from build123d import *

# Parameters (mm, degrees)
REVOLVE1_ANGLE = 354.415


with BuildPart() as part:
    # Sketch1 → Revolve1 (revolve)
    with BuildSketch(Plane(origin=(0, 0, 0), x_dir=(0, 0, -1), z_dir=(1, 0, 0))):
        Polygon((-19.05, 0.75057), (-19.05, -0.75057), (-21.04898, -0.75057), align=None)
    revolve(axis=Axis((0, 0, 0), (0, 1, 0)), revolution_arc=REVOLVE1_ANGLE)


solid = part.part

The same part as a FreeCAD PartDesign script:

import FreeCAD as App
import Part
import Sketcher

doc = App.newDocument("Part")
body = doc.addObject("PartDesign::Body", "Body")

sketch1 = doc.addObject("Sketcher::SketchObject", "Sketch")
body.addObject(sketch1)
sketch1.AttachmentSupport = (doc.YZ_Plane, [""])
sketch1.MapMode = "FlatFace"
sketch1.addGeometry([
    Part.LineSegment(App.Vector(-0.8, 19.1, 0), App.Vector(0.8, 19.1, 0)),
    Part.LineSegment(App.Vector(0.8, 19.1, 0), App.Vector(-0.8, 21, 0)),
    Part.LineSegment(App.Vector(-0.8, 21, 0), App.Vector(-0.8, 19.1, 0)),
], False)
sketch1.addConstraint([
    Sketcher.Constraint("Coincident", 0, 2, 1, 1),
    Sketcher.Constraint("Coincident", 1, 2, 2, 1),
    Sketcher.Constraint("Coincident", 2, 2, 0, 1),
    Sketcher.Constraint("Horizontal", 0),
    Sketcher.Constraint("Vertical", 2),
    Sketcher.Constraint("DistanceY", -1, 1, 0, 2, 19.05),
    Sketcher.Constraint("DistanceX", 0, 1, 0, 2, 1.50114),
    Sketcher.Constraint("DistanceY", 2, 2, 2, 1, 1.99898),
    Sketcher.Constraint("DistanceX", -1, 1, 0, 2, 0.75057),
])
revolution = doc.addObject("PartDesign::Revolution", "Revolution")
body.addObject(revolution)
revolution.Profile = sketch1
revolution.ReferenceAxis = (sketch1, ["H_Axis"])
revolution.Angle = 354.415

doc.recompute()
